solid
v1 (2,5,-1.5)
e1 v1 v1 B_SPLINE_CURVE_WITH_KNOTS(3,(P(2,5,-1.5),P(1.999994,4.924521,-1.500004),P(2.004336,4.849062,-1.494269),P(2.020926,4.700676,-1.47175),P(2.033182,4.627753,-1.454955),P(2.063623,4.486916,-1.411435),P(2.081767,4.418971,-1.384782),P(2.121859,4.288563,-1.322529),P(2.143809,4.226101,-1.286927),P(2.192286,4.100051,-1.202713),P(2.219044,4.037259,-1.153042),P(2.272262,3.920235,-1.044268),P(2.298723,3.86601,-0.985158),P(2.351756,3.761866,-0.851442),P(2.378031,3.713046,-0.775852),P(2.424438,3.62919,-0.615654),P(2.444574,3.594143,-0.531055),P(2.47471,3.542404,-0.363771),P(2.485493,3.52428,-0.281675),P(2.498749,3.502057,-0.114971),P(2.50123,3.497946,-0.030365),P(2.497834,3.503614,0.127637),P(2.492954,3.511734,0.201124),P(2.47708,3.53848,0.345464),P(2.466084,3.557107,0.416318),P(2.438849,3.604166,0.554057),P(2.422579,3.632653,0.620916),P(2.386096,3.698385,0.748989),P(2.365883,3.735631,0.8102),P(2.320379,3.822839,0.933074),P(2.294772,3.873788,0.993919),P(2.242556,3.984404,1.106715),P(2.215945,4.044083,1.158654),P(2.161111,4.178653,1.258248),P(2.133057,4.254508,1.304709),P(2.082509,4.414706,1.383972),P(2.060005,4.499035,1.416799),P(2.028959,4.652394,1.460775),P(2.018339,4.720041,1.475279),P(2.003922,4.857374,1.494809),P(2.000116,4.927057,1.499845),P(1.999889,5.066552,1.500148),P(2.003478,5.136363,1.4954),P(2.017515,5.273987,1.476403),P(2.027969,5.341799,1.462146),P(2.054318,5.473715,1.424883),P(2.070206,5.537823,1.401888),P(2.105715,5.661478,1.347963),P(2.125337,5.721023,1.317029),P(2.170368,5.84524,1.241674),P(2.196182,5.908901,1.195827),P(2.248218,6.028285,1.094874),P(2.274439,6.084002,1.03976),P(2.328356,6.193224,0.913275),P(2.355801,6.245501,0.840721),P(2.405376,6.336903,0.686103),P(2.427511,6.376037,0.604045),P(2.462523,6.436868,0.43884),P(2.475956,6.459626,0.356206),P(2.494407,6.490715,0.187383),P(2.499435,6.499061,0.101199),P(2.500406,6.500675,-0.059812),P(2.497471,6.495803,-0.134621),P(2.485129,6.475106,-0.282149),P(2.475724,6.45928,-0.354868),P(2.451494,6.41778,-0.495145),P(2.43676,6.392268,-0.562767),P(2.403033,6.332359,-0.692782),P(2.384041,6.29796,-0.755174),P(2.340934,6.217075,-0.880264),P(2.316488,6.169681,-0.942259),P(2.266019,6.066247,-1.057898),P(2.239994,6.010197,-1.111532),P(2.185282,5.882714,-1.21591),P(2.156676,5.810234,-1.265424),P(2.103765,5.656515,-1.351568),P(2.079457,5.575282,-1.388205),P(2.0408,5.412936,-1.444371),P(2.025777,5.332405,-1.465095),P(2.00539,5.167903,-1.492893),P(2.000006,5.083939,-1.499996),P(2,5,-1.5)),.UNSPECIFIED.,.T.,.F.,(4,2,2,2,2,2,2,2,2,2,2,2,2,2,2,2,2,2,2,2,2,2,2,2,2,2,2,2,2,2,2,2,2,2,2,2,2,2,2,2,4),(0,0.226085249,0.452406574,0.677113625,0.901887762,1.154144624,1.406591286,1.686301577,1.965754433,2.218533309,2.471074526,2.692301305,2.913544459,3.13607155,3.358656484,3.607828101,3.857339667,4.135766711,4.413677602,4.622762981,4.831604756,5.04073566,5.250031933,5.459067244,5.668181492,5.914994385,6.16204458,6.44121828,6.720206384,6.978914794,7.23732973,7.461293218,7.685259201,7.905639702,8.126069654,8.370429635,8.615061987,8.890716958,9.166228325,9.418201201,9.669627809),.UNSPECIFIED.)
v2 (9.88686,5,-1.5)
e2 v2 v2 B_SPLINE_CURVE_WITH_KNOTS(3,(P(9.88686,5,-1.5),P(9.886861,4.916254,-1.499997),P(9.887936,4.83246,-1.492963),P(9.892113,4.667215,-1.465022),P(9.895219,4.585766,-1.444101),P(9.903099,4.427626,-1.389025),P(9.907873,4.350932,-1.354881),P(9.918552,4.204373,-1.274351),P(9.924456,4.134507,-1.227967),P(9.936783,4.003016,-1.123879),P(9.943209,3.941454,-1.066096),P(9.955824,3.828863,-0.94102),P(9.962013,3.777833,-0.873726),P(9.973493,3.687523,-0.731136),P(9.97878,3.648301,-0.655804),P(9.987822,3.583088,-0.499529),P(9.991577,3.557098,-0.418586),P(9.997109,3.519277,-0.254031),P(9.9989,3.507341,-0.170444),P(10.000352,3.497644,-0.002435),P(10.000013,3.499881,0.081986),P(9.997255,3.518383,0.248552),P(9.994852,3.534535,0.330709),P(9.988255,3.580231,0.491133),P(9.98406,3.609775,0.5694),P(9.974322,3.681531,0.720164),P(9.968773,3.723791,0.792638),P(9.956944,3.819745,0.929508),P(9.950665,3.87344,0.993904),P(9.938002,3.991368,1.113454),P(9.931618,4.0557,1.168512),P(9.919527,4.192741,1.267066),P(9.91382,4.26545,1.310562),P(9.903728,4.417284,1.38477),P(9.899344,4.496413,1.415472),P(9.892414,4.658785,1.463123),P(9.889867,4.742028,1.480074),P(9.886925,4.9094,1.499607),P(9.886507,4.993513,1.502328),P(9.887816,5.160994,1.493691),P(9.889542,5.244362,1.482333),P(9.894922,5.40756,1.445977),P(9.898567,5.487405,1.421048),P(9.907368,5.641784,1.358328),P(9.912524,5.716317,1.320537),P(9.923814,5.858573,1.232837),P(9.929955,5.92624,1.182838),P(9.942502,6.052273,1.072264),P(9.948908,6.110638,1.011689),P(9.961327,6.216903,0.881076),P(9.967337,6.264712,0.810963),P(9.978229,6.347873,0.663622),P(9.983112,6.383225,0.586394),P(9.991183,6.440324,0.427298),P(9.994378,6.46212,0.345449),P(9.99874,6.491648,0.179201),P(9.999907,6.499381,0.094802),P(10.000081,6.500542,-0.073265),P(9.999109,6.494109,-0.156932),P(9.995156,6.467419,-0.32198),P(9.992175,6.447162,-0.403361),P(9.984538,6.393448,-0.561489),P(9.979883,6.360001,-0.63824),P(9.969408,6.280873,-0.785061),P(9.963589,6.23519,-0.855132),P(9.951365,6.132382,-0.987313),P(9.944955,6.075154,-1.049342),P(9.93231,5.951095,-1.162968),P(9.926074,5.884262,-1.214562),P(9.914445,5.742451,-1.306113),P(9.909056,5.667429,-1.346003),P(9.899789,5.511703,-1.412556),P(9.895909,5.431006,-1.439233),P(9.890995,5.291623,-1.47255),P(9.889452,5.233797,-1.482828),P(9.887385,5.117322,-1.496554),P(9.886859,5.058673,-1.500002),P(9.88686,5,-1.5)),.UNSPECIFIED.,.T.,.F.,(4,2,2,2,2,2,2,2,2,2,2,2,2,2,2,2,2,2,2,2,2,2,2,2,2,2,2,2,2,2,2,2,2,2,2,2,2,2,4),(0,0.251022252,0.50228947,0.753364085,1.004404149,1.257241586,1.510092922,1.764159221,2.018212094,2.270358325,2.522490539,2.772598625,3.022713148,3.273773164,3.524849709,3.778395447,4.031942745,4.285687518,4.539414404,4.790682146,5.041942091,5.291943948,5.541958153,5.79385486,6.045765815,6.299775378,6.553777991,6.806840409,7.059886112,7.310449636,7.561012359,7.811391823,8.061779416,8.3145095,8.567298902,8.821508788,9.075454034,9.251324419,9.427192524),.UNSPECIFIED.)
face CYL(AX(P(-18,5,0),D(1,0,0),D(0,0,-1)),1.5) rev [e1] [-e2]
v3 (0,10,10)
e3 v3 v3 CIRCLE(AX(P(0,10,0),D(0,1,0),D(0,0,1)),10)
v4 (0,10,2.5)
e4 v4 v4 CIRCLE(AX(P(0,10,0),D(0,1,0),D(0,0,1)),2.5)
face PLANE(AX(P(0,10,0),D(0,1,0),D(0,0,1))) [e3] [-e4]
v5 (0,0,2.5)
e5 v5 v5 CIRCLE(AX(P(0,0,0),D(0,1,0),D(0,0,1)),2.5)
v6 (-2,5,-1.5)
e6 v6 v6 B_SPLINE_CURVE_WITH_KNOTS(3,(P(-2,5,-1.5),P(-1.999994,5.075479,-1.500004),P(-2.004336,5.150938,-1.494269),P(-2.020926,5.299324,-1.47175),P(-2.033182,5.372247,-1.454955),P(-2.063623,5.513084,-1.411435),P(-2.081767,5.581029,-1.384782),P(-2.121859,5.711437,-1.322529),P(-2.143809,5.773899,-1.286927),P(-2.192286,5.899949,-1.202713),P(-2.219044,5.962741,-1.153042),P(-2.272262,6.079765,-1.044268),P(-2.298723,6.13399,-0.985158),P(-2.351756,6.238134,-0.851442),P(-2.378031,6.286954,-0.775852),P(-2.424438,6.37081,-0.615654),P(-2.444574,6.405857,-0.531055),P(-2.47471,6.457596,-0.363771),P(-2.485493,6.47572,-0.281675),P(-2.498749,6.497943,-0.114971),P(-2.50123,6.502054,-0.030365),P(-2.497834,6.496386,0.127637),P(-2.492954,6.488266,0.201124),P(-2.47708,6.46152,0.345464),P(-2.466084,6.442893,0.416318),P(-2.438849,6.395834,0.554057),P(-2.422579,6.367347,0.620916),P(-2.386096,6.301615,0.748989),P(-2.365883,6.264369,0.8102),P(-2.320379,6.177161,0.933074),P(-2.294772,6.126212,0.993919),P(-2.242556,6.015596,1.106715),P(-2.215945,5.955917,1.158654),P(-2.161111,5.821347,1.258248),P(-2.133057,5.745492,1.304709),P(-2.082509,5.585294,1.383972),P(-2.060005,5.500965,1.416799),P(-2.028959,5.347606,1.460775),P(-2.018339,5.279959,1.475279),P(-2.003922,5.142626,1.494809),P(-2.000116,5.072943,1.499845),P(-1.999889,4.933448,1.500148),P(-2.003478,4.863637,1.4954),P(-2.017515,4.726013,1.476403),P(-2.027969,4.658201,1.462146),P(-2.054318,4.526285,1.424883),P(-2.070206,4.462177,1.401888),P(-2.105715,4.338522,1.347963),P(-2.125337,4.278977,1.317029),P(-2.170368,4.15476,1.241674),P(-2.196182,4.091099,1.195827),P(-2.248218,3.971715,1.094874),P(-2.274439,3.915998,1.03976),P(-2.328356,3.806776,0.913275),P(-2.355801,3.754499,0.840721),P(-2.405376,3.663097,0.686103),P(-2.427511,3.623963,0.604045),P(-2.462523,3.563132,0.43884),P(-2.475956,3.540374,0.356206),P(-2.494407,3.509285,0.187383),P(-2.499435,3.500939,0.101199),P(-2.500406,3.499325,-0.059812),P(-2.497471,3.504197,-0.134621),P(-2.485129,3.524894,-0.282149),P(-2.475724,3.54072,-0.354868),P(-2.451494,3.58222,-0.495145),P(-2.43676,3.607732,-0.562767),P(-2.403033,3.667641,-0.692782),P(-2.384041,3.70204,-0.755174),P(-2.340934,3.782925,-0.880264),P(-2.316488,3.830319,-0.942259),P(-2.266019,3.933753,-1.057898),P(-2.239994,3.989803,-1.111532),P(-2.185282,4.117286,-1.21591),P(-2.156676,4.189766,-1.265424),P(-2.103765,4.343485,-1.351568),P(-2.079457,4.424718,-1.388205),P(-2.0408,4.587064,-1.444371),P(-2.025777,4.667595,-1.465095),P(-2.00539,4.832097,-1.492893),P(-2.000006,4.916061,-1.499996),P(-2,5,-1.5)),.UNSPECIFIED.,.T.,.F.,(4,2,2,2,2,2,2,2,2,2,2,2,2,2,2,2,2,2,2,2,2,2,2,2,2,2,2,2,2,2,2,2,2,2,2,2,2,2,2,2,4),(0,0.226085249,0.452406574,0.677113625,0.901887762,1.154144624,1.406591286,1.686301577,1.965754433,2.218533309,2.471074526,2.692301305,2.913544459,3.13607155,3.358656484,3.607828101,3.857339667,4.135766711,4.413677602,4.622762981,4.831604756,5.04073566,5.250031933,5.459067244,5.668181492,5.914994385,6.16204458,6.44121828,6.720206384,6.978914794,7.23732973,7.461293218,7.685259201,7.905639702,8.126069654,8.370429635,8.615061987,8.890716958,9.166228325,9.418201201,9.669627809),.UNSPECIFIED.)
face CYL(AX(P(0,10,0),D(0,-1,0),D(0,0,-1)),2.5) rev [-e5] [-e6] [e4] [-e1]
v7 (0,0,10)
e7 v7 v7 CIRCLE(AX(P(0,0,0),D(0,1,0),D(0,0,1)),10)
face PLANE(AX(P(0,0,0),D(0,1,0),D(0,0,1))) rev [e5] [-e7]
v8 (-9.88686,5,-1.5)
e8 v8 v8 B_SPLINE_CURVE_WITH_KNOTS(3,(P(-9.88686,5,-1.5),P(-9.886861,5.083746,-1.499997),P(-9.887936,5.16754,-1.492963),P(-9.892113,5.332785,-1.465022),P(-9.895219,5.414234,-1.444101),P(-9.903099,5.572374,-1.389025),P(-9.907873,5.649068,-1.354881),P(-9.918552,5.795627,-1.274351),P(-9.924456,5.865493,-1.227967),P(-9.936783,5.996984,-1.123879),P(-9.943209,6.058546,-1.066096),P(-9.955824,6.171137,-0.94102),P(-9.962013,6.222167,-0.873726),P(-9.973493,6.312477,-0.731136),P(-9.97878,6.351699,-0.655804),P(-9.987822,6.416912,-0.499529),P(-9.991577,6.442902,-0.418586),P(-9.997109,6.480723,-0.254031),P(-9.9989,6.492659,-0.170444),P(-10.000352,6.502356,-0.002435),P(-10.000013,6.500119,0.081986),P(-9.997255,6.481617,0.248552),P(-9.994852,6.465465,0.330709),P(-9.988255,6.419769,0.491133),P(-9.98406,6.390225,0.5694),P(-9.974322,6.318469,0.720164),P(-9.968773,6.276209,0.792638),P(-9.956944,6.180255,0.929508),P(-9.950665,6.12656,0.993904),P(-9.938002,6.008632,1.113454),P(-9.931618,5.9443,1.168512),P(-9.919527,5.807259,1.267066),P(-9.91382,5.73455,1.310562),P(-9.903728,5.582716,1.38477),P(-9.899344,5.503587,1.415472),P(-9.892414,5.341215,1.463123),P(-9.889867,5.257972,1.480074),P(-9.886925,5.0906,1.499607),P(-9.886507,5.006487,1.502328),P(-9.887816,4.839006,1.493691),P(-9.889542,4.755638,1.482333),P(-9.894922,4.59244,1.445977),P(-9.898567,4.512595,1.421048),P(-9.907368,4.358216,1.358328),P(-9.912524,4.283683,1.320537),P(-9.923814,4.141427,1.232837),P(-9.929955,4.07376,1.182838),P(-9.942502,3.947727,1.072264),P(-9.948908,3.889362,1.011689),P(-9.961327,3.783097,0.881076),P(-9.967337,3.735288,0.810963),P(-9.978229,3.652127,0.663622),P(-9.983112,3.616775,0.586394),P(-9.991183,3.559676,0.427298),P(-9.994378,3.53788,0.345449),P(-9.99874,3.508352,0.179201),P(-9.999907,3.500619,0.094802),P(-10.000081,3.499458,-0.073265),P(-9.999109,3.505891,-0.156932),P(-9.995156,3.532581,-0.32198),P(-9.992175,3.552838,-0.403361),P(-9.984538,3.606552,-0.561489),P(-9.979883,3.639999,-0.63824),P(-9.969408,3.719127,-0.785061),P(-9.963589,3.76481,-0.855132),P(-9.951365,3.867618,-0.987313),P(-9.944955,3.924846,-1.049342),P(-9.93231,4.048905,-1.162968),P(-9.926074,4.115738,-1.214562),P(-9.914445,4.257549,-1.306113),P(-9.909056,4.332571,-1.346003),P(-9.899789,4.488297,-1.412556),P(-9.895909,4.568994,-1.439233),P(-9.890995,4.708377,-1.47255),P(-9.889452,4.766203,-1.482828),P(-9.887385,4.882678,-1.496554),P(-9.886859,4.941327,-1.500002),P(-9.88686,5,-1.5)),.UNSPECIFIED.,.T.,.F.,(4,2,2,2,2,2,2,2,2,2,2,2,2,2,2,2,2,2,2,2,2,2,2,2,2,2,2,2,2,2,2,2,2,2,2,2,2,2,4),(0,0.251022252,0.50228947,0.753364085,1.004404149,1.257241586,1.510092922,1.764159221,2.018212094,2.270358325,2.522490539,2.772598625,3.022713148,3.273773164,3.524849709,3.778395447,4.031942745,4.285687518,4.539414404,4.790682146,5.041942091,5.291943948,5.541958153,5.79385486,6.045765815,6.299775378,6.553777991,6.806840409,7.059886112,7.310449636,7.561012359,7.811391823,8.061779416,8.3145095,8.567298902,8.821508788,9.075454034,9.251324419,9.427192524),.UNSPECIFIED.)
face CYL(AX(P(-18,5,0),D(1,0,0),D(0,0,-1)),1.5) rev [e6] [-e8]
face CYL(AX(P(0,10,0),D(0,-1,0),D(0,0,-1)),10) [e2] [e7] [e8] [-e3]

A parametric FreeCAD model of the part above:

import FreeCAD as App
import Part
import Sketcher
Q = App.Units.Quantity

doc = App.newDocument("Part")
body = doc.addObject("PartDesign::Body", "Body")

sketch1 = body.newObject("Sketcher::SketchObject", "Sketch")
sketch1.AttachmentSupport = (doc.getObject("XZ_Plane"), [""])
sketch1.MapMode = "FlatFace"
sketch1.addGeometry([
    Part.Circle(App.Vector(0, 0, 0), App.Vector(0, 0, 1), 10),
    Part.Circle(App.Vector(0, 0, 0), App.Vector(0, 0, 1), 2.5),
], False)
sketch1.addConstraint([
    Sketcher.Constraint("Coincident", 0, 3, -1, 1),
    Sketcher.Constraint("Coincident", 1, 3, -1, 1),
    Sketcher.Constraint("Diameter", 0, Q("20 mm")),
    Sketcher.Constraint("Diameter", 1, Q("5 mm")),
])
pad1 = body.newObject("PartDesign::Pad", "Pad")
pad1.Profile = sketch1
pad1.Length = 10
pad1.Reversed = True

sketch2 = body.newObject("Sketcher::SketchObject", "Sketch001")
sketch2.AttachmentSupport = (doc.getObject("YZ_Plane"), [""])
sketch2.MapMode = "FlatFace"
sketch2.addGeometry(Part.Circle(App.Vector(5, 0, 0), App.Vector(0, 0, 1), 1.5), False)
sketch2.addConstraint([
    Sketcher.Constraint("PointOnObject", 0, 3, -1),
    Sketcher.Constraint("Diameter", 0, Q("3 mm")),
    Sketcher.Constraint("DistanceX", -1, 1, 0, 3, Q("5 mm")),
])
pocket1 = body.newObject("PartDesign::Pocket", "Pocket")
pocket1.Profile = sketch2
pocket1.Type = "ThroughAll"
pocket1.Midplane = True

doc.recompute()
